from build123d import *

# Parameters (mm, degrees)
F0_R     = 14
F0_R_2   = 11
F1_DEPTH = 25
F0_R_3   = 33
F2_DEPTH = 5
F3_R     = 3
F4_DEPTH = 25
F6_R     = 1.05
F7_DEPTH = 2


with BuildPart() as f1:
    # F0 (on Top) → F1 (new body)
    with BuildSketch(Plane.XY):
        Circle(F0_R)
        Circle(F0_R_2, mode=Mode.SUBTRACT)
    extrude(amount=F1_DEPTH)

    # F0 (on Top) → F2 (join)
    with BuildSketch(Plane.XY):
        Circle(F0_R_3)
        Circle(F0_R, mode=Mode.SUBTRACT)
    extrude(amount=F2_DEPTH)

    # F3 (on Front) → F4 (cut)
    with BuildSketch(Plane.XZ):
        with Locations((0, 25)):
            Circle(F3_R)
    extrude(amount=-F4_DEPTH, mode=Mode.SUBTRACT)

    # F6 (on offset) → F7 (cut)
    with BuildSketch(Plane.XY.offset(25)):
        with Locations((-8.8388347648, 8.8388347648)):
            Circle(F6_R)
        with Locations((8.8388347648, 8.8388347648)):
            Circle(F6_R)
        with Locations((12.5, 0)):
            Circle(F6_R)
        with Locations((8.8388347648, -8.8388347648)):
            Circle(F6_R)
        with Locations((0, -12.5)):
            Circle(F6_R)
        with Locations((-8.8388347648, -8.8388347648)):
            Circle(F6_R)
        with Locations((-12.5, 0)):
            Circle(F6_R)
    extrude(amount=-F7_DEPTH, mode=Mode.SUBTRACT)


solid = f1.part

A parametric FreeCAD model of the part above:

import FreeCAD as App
import Part
import Sketcher

V = App.Vector

doc = App.newDocument("Part")
body = doc.addObject("PartDesign::Body", "Body")

# Sketch on XY plane
sketch1 = doc.addObject("Sketcher::SketchObject", "Sketch")
body.addObject(sketch1)
sketch1.AttachmentSupport = (doc.XY_Plane, [""])
sketch1.MapMode = "FlatFace"
sketch1.addGeometry(Part.Circle(V(0, 0, 0), V(0, 0, 1), 14), False)
sketch1.addGeometry(Part.Circle(V(0, 0, 0), V(0, 0, 1), 11), False)
sketch1.addConstraint(Sketcher.Constraint("Coincident", 0, 3, -1, 1))
sketch1.addConstraint(Sketcher.Constraint("Coincident", 1, 3, -1, 1))
sketch1.addConstraint(Sketcher.Constraint("Diameter", 0, 28.0))
sketch1.addConstraint(Sketcher.Constraint("Diameter", 1, 22.0))
pad1 = doc.addObject("PartDesign::Pad", "Pad")
body.addObject(pad1)
pad1.Profile = sketch1
pad1.Length = 25

# Sketch on XY plane
sketch2 = doc.addObject("Sketcher::SketchObject", "Sketch001")
body.addObject(sketch2)
sketch2.AttachmentSupport = (doc.XY_Plane, [""])
sketch2.MapMode = "FlatFace"
sketch2.addGeometry(Part.Circle(V(0, 0, 0), V(0, 0, 1), 33), False)
sketch2.addGeometry(Part.Circle(V(0, 0, 0), V(0, 0, 1), 14), False)
sketch2.addConstraint(Sketcher.Constraint("Coincident", 0, 3, -1, 1))
sketch2.addConstraint(Sketcher.Constraint("Coincident", 1, 3, -1, 1))
sketch2.addConstraint(Sketcher.Constraint("Diameter", 0, 66.0))
sketch2.addConstraint(Sketcher.Constraint("Diameter", 1, 28.0))
pad2 = doc.addObject("PartDesign::Pad", "Pad001")
body.addObject(pad2)
pad2.Profile = sketch2
pad2.Length = 5

# Sketch on XZ plane
sketch3 = doc.addObject("Sketcher::SketchObject", "Sketch002")
body.addObject(sketch3)
sketch3.AttachmentSupport = (doc.XZ_Plane, [""])
sketch3.MapMode = "FlatFace"
sketch3.addGeometry(Part.Circle(V(0, 25, 0), V(0, 0, 1), 3), False)
sketch3.addConstraint(Sketcher.Constraint("PointOnObject", 0, 3, -2))
sketch3.addConstraint(Sketcher.Constraint("Diameter", 0, 6.0))
sketch3.addConstraint(Sketcher.Constraint("DistanceY", -1, 1, 0, 3, 25.0))
pocket1 = doc.addObject("PartDesign::Pocket", "Pocket")
body.addObject(pocket1)
pocket1.Profile = sketch3
pocket1.Length = 25

# Sketch on XY plane
sketch4 = doc.addObject("Sketcher::SketchObject", "Sketch003")
body.addObject(sketch4)
sketch4.AttachmentSupport = (doc.XY_Plane, [""])
sketch4.MapMode = "FlatFace"
sketch4.AttachmentOffset = App.Placement(V(0, 0, 25), App.Rotation())
sketch4.addGeometry(Part.Circle(V(-8.8, 8.8, 0), V(0, 0, 1), 1.1), False)
sketch4.addGeometry(Part.Circle(V(8.8, 8.8, 0), V(0, 0, 1), 1.1), False)
sketch4.addGeometry(Part.Circle(V(12.5, 0, 0), V(0, 0, 1), 1.1), False)
sketch4.addGeometry(Part.Circle(V(8.8, -8.8, 0), V(0, 0, 1), 1.1), False)
sketch4.addGeometry(Part.Circle(V(0, -12.5, 0), V(0, 0, 1), 1.1), False)
sketch4.addGeometry(Part.Circle(V(-8.8, -8.8, 0), V(0, 0, 1), 1.1), False)
sketch4.addGeometry(Part.Circle(V(-12.5, 0, 0), V(0, 0, 1), 1.1), False)
sketch4.addConstraint(Sketcher.Constraint("Equal", 0, 1))
sketch4.addConstraint(Sketcher.Constraint("Equal", 1, 2))
sketch4.addConstraint(Sketcher.Constraint("Equal", 2, 3))
sketch4.addConstraint(Sketcher.Constraint("Equal", 3, 4))
sketch4.addConstraint(Sketcher.Constraint("Equal", 4, 5))
sketch4.addConstraint(Sketcher.Constraint("Equal", 5, 6))
sketch4.addConstraint(Sketcher.Constraint("Symmetric", 0, 3, 3, 3, -1, 1))
sketch4.addConstraint(Sketcher.Constraint("Symmetric", 1, 3, 5, 3, -1, 1))
sketch4.addConstraint(Sketcher.Constraint("Symmetric", 2, 3, 6, 3, -1, 1))
sketch4.addConstraint(Sketcher.Constraint("Symmetric", 0, 3, 1, 3, -2))
sketch4.addConstraint(Sketcher.Constraint("PointOnObject", 2, 3, -1))
sketch4.addConstraint(Sketcher.Constraint("PointOnObject", 4, 3, -2))
sketch4.addConstraint(Sketcher.Constraint("Diameter", 0, 2.1))
sketch4.addConstraint(Sketcher.Constraint("DistanceX", -1, 1, 2, 3, 12.5))
sketch4.addConstraint(Sketcher.Constraint("DistanceY", 4, 3, -1, 1, 12.5))
sketch4.addConstraint(Sketcher.Constraint("DistanceX", 0, 3, 1, 3, 17.67767))
sketch4.addConstraint(Sketcher.Constraint("DistanceY", 3, 3, 1, 3, 17.67767))
pocket2 = doc.addObject("PartDesign::Pocket", "Pocket001")
body.addObject(pocket2)
pocket2.Profile = sketch4
pocket2.Length = 2

doc.recompute()
